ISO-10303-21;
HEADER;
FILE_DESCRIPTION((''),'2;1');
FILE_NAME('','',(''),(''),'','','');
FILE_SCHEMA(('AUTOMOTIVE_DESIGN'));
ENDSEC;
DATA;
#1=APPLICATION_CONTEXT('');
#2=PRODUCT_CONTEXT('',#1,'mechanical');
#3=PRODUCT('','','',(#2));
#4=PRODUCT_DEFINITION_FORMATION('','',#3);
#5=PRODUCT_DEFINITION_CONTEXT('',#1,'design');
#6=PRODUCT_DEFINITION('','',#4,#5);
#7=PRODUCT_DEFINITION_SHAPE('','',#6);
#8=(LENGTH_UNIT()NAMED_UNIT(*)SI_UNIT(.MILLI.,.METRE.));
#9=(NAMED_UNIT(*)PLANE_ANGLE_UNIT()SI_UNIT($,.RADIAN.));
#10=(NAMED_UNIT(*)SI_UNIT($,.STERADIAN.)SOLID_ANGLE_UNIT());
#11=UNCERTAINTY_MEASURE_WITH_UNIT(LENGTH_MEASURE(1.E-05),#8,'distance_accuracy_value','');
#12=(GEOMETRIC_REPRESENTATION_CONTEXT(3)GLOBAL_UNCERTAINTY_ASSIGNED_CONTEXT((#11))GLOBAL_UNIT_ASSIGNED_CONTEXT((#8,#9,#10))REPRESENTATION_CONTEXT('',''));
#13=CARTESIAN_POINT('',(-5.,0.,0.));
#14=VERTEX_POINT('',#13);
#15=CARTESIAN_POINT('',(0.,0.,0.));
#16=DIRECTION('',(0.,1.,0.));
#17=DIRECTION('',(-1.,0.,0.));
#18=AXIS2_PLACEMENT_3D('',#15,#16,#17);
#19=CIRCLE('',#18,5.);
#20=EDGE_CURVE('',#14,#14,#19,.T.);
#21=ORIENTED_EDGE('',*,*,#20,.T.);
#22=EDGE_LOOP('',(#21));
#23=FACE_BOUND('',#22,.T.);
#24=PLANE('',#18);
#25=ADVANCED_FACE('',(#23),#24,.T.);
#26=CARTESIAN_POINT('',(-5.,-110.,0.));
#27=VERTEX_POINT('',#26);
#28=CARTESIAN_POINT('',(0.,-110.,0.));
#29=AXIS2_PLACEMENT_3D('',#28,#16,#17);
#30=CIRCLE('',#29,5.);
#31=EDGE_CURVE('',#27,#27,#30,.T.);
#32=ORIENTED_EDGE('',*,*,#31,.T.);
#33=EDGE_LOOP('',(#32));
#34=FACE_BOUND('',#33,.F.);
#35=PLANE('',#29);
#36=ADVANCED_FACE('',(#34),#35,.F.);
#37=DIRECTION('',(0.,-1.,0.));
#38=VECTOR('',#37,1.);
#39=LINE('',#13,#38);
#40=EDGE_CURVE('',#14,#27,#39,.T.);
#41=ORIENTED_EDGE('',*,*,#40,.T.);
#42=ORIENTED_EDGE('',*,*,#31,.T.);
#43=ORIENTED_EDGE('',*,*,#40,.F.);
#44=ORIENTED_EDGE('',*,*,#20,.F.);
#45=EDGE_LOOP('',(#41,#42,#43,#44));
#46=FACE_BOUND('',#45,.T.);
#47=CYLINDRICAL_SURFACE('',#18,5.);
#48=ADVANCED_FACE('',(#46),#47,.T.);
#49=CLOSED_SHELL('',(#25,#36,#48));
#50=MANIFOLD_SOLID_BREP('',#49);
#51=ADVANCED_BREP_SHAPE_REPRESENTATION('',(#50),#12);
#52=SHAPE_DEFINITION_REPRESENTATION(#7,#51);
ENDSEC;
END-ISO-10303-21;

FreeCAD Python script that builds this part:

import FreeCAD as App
import Part
import Sketcher
from FreeCAD import Vector
Q = App.Units.Quantity

doc = App.newDocument("Part")
body = doc.addObject("PartDesign::Body", "Body")

# Sketch on XZ plane
sketch1 = body.newObject("Sketcher::SketchObject", "Sketch")
sketch1.AttachmentSupport = (doc.getObject("XZ_Plane"), [""])
sketch1.MapMode = "FlatFace"
sketch1.addGeometry(Part.Circle(Vector(0, 0, 0), Vector(0, 0, 1), 5), False)
sketch1.addConstraint([
    Sketcher.Constraint("Coincident", 0, 3, -1, 1),
    Sketcher.Constraint("Diameter", 0, Q("10 mm")),
])
pad1 = body.newObject("PartDesign::Pad", "Pad")
pad1.Profile = sketch1
pad1.Length = 110

doc.recompute()
